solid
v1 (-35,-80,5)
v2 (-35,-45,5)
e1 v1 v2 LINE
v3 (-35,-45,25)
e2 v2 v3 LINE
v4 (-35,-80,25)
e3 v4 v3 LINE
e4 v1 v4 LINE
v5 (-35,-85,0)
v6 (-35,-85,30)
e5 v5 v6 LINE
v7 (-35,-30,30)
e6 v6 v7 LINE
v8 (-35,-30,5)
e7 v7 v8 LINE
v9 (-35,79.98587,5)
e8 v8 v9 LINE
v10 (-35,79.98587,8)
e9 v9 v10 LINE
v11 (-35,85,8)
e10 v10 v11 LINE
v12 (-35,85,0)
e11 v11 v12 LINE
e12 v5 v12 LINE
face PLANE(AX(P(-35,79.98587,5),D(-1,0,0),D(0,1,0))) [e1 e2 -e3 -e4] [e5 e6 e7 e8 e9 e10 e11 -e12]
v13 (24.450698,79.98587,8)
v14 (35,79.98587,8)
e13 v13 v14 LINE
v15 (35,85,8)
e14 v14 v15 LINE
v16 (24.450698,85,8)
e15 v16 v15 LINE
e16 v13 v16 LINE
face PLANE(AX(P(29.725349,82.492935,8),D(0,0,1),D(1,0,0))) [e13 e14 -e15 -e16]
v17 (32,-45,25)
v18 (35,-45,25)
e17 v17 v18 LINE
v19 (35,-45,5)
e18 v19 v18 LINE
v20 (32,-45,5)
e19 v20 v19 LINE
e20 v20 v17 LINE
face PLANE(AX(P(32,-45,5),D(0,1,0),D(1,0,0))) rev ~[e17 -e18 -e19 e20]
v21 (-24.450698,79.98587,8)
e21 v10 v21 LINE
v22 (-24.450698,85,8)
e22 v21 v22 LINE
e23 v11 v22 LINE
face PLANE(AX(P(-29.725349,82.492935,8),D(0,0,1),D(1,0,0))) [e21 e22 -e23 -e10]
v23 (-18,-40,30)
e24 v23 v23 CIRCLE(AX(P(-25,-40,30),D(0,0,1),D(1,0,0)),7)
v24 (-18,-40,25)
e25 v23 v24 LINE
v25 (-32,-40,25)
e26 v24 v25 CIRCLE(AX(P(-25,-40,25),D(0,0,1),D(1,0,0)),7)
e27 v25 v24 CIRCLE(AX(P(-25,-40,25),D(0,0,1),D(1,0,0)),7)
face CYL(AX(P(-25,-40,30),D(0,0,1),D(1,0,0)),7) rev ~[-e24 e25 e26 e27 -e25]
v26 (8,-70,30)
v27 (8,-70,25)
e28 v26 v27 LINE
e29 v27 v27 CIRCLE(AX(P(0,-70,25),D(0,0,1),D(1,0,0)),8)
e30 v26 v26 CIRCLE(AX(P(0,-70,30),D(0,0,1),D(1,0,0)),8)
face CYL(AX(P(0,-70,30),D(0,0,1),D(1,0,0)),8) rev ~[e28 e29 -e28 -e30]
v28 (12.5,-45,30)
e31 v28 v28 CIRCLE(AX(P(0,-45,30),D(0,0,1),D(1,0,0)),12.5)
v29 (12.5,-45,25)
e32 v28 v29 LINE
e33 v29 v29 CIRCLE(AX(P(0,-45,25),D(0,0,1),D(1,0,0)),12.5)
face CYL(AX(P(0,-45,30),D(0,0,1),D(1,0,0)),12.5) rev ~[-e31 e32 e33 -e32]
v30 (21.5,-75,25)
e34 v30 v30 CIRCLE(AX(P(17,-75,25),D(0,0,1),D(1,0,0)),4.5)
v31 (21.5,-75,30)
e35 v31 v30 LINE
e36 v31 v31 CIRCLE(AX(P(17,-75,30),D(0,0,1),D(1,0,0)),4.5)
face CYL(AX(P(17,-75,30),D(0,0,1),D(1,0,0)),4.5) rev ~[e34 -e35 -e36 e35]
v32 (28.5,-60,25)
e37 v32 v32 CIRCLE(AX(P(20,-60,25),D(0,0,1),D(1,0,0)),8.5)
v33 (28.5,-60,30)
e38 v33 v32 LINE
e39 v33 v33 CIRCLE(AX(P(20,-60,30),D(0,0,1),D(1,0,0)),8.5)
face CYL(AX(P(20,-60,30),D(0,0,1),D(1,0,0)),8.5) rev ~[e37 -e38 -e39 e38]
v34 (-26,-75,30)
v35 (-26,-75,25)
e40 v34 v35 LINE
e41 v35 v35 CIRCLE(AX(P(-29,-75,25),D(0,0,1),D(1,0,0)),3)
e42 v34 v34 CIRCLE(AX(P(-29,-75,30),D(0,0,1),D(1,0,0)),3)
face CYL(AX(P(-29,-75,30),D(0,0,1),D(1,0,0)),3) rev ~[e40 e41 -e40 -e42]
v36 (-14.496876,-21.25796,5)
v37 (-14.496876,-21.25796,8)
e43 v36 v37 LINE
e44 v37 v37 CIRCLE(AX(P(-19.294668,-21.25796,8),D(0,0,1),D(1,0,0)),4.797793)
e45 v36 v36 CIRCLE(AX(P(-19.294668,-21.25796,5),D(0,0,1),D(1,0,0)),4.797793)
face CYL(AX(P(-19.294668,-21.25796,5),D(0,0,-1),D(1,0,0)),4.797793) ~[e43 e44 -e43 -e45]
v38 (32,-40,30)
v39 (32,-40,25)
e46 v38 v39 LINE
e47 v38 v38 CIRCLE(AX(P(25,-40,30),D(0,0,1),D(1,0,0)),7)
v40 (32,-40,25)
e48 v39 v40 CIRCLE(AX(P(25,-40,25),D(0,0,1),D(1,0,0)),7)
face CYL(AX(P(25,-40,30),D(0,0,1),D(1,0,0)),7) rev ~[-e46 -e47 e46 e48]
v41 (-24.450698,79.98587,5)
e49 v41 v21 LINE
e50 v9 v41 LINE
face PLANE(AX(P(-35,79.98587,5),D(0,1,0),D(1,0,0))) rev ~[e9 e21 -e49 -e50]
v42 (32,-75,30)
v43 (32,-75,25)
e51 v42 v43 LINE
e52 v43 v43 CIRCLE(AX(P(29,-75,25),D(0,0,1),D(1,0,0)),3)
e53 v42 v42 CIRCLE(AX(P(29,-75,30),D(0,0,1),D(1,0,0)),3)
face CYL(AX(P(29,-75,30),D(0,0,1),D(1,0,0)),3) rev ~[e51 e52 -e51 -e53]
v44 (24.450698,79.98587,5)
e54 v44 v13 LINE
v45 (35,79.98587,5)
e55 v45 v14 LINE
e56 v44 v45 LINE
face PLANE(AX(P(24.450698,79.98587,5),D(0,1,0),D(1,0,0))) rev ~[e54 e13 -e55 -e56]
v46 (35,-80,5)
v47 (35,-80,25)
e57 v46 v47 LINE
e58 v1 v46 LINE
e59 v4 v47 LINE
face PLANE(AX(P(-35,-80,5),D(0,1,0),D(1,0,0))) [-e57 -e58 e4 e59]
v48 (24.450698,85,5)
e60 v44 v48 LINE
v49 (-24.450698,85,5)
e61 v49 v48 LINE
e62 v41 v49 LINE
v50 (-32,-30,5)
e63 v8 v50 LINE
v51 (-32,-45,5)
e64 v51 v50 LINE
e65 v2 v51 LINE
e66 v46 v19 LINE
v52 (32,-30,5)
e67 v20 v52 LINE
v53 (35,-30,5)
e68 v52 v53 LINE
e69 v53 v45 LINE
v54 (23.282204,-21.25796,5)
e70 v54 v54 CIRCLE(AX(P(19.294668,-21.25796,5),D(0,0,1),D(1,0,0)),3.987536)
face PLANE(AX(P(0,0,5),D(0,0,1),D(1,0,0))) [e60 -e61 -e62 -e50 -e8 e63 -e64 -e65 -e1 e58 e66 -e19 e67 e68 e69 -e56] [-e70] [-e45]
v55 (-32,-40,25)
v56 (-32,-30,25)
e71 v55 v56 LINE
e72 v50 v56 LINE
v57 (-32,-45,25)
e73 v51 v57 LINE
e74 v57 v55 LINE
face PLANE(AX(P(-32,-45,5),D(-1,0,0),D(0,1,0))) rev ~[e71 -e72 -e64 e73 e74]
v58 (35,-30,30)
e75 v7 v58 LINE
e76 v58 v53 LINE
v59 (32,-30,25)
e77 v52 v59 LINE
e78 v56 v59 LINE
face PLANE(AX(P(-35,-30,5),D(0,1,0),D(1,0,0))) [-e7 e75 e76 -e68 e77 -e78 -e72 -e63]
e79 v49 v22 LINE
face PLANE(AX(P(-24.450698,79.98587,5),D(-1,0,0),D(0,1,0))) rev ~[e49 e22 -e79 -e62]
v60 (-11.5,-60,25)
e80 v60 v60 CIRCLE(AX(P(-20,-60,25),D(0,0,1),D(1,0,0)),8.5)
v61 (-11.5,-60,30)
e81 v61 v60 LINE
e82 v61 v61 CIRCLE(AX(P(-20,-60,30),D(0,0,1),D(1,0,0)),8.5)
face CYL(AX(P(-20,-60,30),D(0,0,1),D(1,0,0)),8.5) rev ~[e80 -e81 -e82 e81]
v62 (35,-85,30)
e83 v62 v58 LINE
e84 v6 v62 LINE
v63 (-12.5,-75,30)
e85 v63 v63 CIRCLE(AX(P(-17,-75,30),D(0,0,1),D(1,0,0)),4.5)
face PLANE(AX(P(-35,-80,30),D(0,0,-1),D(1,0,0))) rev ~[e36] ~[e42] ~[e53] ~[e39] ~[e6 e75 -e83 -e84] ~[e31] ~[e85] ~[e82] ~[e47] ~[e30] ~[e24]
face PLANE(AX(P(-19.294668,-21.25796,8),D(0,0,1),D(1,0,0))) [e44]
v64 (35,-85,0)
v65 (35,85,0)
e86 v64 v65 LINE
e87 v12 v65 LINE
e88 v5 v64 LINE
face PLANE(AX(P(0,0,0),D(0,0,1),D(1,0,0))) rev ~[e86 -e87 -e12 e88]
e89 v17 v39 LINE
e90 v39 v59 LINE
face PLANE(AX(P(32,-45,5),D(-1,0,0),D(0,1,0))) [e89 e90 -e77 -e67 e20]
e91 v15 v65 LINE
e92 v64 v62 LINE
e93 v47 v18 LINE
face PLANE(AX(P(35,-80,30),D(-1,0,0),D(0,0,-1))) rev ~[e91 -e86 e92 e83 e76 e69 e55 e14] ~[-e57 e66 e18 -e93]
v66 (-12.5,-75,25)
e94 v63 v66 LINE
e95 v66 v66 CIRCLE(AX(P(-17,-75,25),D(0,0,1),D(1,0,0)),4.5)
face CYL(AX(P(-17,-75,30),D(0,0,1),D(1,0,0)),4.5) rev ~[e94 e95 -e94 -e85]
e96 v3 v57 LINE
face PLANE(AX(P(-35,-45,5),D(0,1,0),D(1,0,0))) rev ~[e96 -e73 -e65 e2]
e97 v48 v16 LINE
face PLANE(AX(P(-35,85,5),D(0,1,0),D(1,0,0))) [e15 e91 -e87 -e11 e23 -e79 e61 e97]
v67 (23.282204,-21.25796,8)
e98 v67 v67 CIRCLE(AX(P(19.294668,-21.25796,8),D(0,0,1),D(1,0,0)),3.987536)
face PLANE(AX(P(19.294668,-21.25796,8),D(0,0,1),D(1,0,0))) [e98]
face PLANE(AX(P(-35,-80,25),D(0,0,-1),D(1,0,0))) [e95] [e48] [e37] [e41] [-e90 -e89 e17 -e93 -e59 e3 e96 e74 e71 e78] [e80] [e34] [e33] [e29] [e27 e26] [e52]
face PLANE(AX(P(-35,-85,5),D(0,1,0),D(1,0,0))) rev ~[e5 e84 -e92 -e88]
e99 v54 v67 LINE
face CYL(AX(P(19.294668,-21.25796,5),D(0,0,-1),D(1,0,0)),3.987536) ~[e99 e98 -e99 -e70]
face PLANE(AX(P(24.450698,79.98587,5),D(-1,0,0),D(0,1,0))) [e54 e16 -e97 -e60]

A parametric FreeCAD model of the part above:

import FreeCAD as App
import Part
import Sketcher
Q = App.Units.Quantity


def add_polygon(sketch, points):
    """Adds a closed chain of lines whose ends are joined by coincident constraints."""
    first, n = sketch.GeometryCount, len(points)
    for a, b in zip(points, points[1:] + points[:1]):
        sketch.addGeometry(Part.LineSegment(App.Vector(*a, 0), App.Vector(*b, 0)), False)
    for i in range(n):
        sketch.addConstraint(Sketcher.Constraint("Coincident", first + i, 2, first + (i + 1) % n, 1))

doc = App.newDocument("Part")
body = doc.addObject("PartDesign::Body", "Body")

sketch1 = doc.addObject("Sketcher::SketchObject", "Sketch")
body.addObject(sketch1)
sketch1.AttachmentSupport = (doc.XY_Plane, [""])
sketch1.MapMode = "FlatFace"
add_polygon(sketch1, [(-35, 85), (-35, -85), (35, -85), (35, 85)])
sketch1.addConstraint(Sketcher.Constraint("Vertical", 0))
sketch1.addConstraint(Sketcher.Constraint("Horizontal", 1))
sketch1.addConstraint(Sketcher.Constraint("Vertical", 2))
sketch1.addConstraint(Sketcher.Constraint("Horizontal", 3))
sketch1.addConstraint(Sketcher.Constraint("Symmetric", 0, 2, 2, 2, -1, 1))
sketch1.addConstraint(Sketcher.Constraint("DistanceX", 1, 1, 1, 2, Q("70 mm")))
sketch1.addConstraint(Sketcher.Constraint("DistanceY", 0, 2, 0, 1, Q("170 mm")))
pad1 = doc.addObject("PartDesign::Pad", "Pad")
body.addObject(pad1)
pad1.Profile = sketch1
pad1.Length = 5

sketch2 = doc.addObject("Sketcher::SketchObject", "Sketch001")
body.addObject(sketch2)
sketch2.AttachmentSupport = (doc.XY_Plane, [""])
sketch2.MapMode = "FlatFace"
sketch2.AttachmentOffset = App.Placement(App.Vector(0, 0, 5), App.Rotation())
add_polygon(sketch2, [(-35, -80), (-35, -85), (35, -85), (35, -80)])
sketch2.addConstraint(Sketcher.Constraint("Vertical", 0))
sketch2.addConstraint(Sketcher.Constraint("Horizontal", 1))
sketch2.addConstraint(Sketcher.Constraint("Vertical", 2))
sketch2.addConstraint(Sketcher.Constraint("Horizontal", 3))
sketch2.addConstraint(Sketcher.Constraint("DistanceX", 1, 1, 1, 2, Q("70 mm")))
sketch2.addConstraint(Sketcher.Constraint("DistanceY", 0, 2, 0, 1, Q("5 mm")))
sketch2.addConstraint(Sketcher.Constraint("DistanceX", 0, 2, -1, 1, Q("35 mm")))
sketch2.addConstraint(Sketcher.Constraint("DistanceY", 0, 2, -1, 1, Q("85 mm")))
pad2 = doc.addObject("PartDesign::Pad", "Pad001")
body.addObject(pad2)
pad2.Profile = sketch2
pad2.Length = 25

sketch3 = doc.addObject("Sketcher::SketchObject", "Sketch002")
body.addObject(sketch3)
sketch3.AttachmentSupport = (doc.XZ_Plane, [""])
sketch3.MapMode = "FlatFace"
sketch3.AttachmentOffset = App.Placement(App.Vector(0, 0, 80), App.Rotation())
add_polygon(sketch3, [(-35, 25), (-35, 30), (35, 30), (35, 25)])
sketch3.addConstraint(Sketcher.Constraint("Vertical", 0))
sketch3.addConstraint(Sketcher.Constraint("Horizontal", 1))
sketch3.addConstraint(Sketcher.Constraint("Vertical", 2))
sketch3.addConstraint(Sketcher.Constraint("Horizontal", 3))
sketch3.addConstraint(Sketcher.Constraint("DistanceX", 1, 1, 1, 2, Q("70 mm")))
sketch3.addConstraint(Sketcher.Constraint("DistanceY", 0, 1, 0, 2, Q("5 mm")))
sketch3.addConstraint(Sketcher.Constraint("DistanceX", 0, 2, -1, 1, Q("35 mm")))
sketch3.addConstraint(Sketcher.Constraint("DistanceY", -1, 1, 0, 2, Q("30 mm")))
pad3 = doc.addObject("PartDesign::Pad", "Pad002")
body.addObject(pad3)
pad3.Profile = sketch3
pad3.Length = 50
pad3.Reversed = True

sketch4 = doc.addObject("Sketcher::SketchObject", "Sketch003")
body.addObject(sketch4)
sketch4.AttachmentSupport = (doc.XY_Plane, [""])
sketch4.MapMode = "FlatFace"
sketch4.AttachmentOffset = App.Placement(App.Vector(0, 0, 5), App.Rotation())
add_polygon(sketch4, [(-35, -30), (-35, -45), (-32, -45), (-32, -30)])
add_polygon(sketch4, [(32, -30), (32, -45), (35, -45), (35, -30)])
sketch4.addConstraint(Sketcher.Constraint("Vertical", 0))
sketch4.addConstraint(Sketcher.Constraint("Horizontal", 1))
sketch4.addConstraint(Sketcher.Constraint("Vertical", 2))
sketch4.addConstraint(Sketcher.Constraint("Horizontal", 3))
sketch4.addConstraint(Sketcher.Constraint("Vertical", 4))
sketch4.addConstraint(Sketcher.Constraint("Horizontal", 5))
sketch4.addConstraint(Sketcher.Constraint("Vertical", 6))
sketch4.addConstraint(Sketcher.Constraint("Horizontal", 7))
sketch4.addConstraint(Sketcher.Constraint("Symmetric", 1, 2, 4, 2, -2))
sketch4.addConstraint(Sketcher.Constraint("Symmetric", 3, 2, 6, 2, -2))
sketch4.addConstraint(Sketcher.Constraint("DistanceX", 1, 1, 1, 2, Q("3 mm")))
sketch4.addConstraint(Sketcher.Constraint("DistanceY", 0, 2, 0, 1, Q("15 mm")))
sketch4.addConstraint(Sketcher.Constraint("DistanceX", 0, 2, -1, 1, Q("35 mm")))
sketch4.addConstraint(Sketcher.Constraint("DistanceY", 0, 2, -1, 1, Q("45 mm")))
pad4 = doc.addObject("PartDesign::Pad", "Pad003")
body.addObject(pad4)
pad4.Profile = sketch4
pad4.Length = 20

sketch5 = doc.addObject("Sketcher::SketchObject", "Sketch004")
body.addObject(sketch5)
sketch5.AttachmentSupport = (doc.XY_Plane, [""])
sketch5.MapMode = "FlatFace"
sketch5.AttachmentOffset = App.Placement(App.Vector(0, 0, 30), App.Rotation())
sketch5.addGeometry(Part.Circle(App.Vector(0, -45, 0), App.Vector(0, 0, 1), 12), False)
sketch5.addConstraint(Sketcher.Constraint("PointOnObject", 0, 3, -2))
sketch5.addConstraint(Sketcher.Constraint("Diameter", 0, Q("25 mm")))
sketch5.addConstraint(Sketcher.Constraint("DistanceY", 0, 3, -1, 1, Q("45 mm")))
pocket1 = doc.addObject("PartDesign::Pocket", "Pocket")
body.addObject(pocket1)
pocket1.Profile = sketch5
pocket1.Type = "UpToFirst"

sketch6 = doc.addObject("Sketcher::SketchObject", "Sketch005")
body.addObject(sketch6)
sketch6.AttachmentSupport = (doc.XY_Plane, [""])
sketch6.MapMode = "FlatFace"
sketch6.AttachmentOffset = App.Placement(App.Vector(0, 0, 30), App.Rotation())
sketch6.addGeometry(Part.Circle(App.Vector(-25, -40, 0), App.Vector(0, 0, 1), 7), False)
sketch6.addConstraint(Sketcher.Constraint("Diameter", 0, Q("14 mm")))
sketch6.addConstraint(Sketcher.Constraint("DistanceX", 0, 3, -1, 1, Q("25 mm")))
sketch6.addConstraint(Sketcher.Constraint("DistanceY", 0, 3, -1, 1, Q("40 mm")))
pocket2 = doc.addObject("PartDesign::Pocket", "Pocket001")
body.addObject(pocket2)
pocket2.Profile = sketch6
pocket2.Type = "UpToFirst"

sketch7 = doc.addObject("Sketcher::SketchObject", "Sketch006")
body.addObject(sketch7)
sketch7.AttachmentSupport = (doc.XY_Plane, [""])
sketch7.MapMode = "FlatFace"
sketch7.AttachmentOffset = App.Placement(App.Vector(0, 0, 30), App.Rotation())
sketch7.addGeometry(Part.Circle(App.Vector(25, -40, 0), App.Vector(0, 0, 1), 7), False)
sketch7.addConstraint(Sketcher.Constraint("Diameter", 0, Q("14 mm")))
sketch7.addConstraint(Sketcher.Constraint("DistanceX", -1, 1, 0, 3, Q("25 mm")))
sketch7.addConstraint(Sketcher.Constraint("DistanceY", 0, 3, -1, 1, Q("40 mm")))
pocket3 = doc.addObject("PartDesign::Pocket", "Pocket002")
body.addObject(pocket3)
pocket3.Profile = sketch7
pocket3.Type = "UpToFirst"

sketch8 = doc.addObject("Sketcher::SketchObject", "Sketch007")
body.addObject(sketch8)
sketch8.AttachmentSupport = (doc.XY_Plane, [""])
sketch8.MapMode = "FlatFace"
sketch8.AttachmentOffset = App.Placement(App.Vector(0, 0, 30), App.Rotation())
sketch8.addGeometry(Part.Circle(App.Vector(-20, -60, 0), App.Vector(0, 0, 1), 8), False)
sketch8.addConstraint(Sketcher.Constraint("Diameter", 0, Q("17 mm")))
sketch8.addConstraint(Sketcher.Constraint("DistanceX", 0, 3, -1, 1, Q("20 mm")))
sketch8.addConstraint(Sketcher.Constraint("DistanceY", 0, 3, -1, 1, Q("60 mm")))
pocket4 = doc.addObject("PartDesign::Pocket", "Pocket003")
body.addObject(pocket4)
pocket4.Profile = sketch8
pocket4.Type = "UpToFirst"

sketch9 = doc.addObject("Sketcher::SketchObject", "Sketch008")
body.addObject(sketch9)
sketch9.AttachmentSupport = (doc.XY_Plane, [""])
sketch9.MapMode = "FlatFace"
sketch9.AttachmentOffset = App.Placement(App.Vector(0, 0, 30), App.Rotation())
sketch9.addGeometry(Part.Circle(App.Vector(20, -60, 0), App.Vector(0, 0, 1), 8), False)
sketch9.addConstraint(Sketcher.Constraint("Diameter", 0, Q("17 mm")))
sketch9.addConstraint(Sketcher.Constraint("DistanceX", -1, 1, 0, 3, Q("20 mm")))
sketch9.addConstraint(Sketcher.Constraint("DistanceY", 0, 3, -1, 1, Q("60 mm")))
pocket5 = doc.addObject("PartDesign::Pocket", "Pocket004")
body.addObject(pocket5)
pocket5.Profile = sketch9
pocket5.Type = "UpToFirst"

sketch10 = doc.addObject("Sketcher::SketchObject", "Sketch009")
body.addObject(sketch10)
sketch10.AttachmentSupport = (doc.XY_Plane, [""])
sketch10.MapMode = "FlatFace"
sketch10.AttachmentOffset = App.Placement(App.Vector(0, 0, 30), App.Rotation())
sketch10.addGeometry(Part.Circle(App.Vector(0, -70, 0), App.Vector(0, 0, 1), 8), False)
sketch10.addConstraint(Sketcher.Constraint("PointOnObject", 0, 3, -2))
sketch10.addConstraint(Sketcher.Constraint("Diameter", 0, Q("16 mm")))
sketch10.addConstraint(Sketcher.Constraint("DistanceY", 0, 3, -1, 1, Q("70 mm")))
pocket6 = doc.addObject("PartDesign::Pocket", "Pocket005")
body.addObject(pocket6)
pocket6.Profile = sketch10
pocket6.Type = "UpToFirst"

sketch11 = doc.addObject("Sketcher::SketchObject", "Sketch010")
body.addObject(sketch11)
sketch11.AttachmentSupport = (doc.XY_Plane, [""])
sketch11.MapMode = "FlatFace"
sketch11.AttachmentOffset = App.Placement(App.Vector(0, 0, 30), App.Rotation())
sketch11.addGeometry(Part.Circle(App.Vector(-17, -75, 0), App.Vector(0, 0, 1), 4.5), False)
sketch11.addConstraint(Sketcher.Constraint("Diameter", 0, Q("9 mm")))
sketch11.addConstraint(Sketcher.Constraint("DistanceX", 0, 3, -1, 1, Q("17 mm")))
sketch11.addConstraint(Sketcher.Constraint("DistanceY", 0, 3, -1, 1, Q("75 mm")))
pocket7 = doc.addObject("PartDesign::Pocket", "Pocket006")
body.addObject(pocket7)
pocket7.Profile = sketch11
pocket7.Type = "UpToFirst"

sketch12 = doc.addObject("Sketcher::SketchObject", "Sketch011")
body.addObject(sketch12)
sketch12.AttachmentSupport = (doc.XY_Plane, [""])
sketch12.MapMode = "FlatFace"
sketch12.AttachmentOffset = App.Placement(App.Vector(0, 0, 30), App.Rotation())
sketch12.addGeometry(Part.Circle(App.Vector(17, -75, 0), App.Vector(0, 0, 1), 4.5), False)
sketch12.addConstraint(Sketcher.Constraint("Diameter", 0, Q("9 mm")))
sketch12.addConstraint(Sketcher.Constraint("DistanceX", -1, 1, 0, 3, Q("17 mm")))
sketch12.addConstraint(Sketcher.Constraint("DistanceY", 0, 3, -1, 1, Q("75 mm")))
pocket8 = doc.addObject("PartDesign::Pocket", "Pocket007")
body.addObject(pocket8)
pocket8.Profile = sketch12
pocket8.Type = "UpToFirst"

sketch13 = doc.addObject("Sketcher::SketchObject", "Sketch012")
body.addObject(sketch13)
sketch13.AttachmentSupport = (doc.XY_Plane, [""])
sketch13.MapMode = "FlatFace"
sketch13.AttachmentOffset = App.Placement(App.Vector(0, 0, 30), App.Rotation())
sketch13.addGeometry(Part.Circle(App.Vector(29, -75, 0), App.Vector(0, 0, 1), 3), False)
sketch13.addConstraint(Sketcher.Constraint("Diameter", 0, Q("6 mm")))
sketch13.addConstraint(Sketcher.Constraint("DistanceX", -1, 1, 0, 3, Q("29 mm")))
sketch13.addConstraint(Sketcher.Constraint("DistanceY", 0, 3, -1, 1, Q("75 mm")))
pocket9 = doc.addObject("PartDesign::Pocket", "Pocket008")
body.addObject(pocket9)
pocket9.Profile = sketch13
pocket9.Type = "UpToFirst"

sketch14 = doc.addObject("Sketcher::SketchObject", "Sketch013")
body.addObject(sketch14)
sketch14.AttachmentSupport = (doc.XY_Plane, [""])
sketch14.MapMode = "FlatFace"
sketch14.AttachmentOffset = App.Placement(App.Vector(0, 0, 30), App.Rotation())
sketch14.addGeometry(Part.Circle(App.Vector(-29, -75, 0), App.Vector(0, 0, 1), 3), False)
sketch14.addConstraint(Sketcher.Constraint("Diameter", 0, Q("6 mm")))
sketch14.addConstraint(Sketcher.Constraint("DistanceX", 0, 3, -1, 1, Q("29 mm")))
sketch14.addConstraint(Sketcher.Constraint("DistanceY", 0, 3, -1, 1, Q("75 mm")))
pocket10 = doc.addObject("PartDesign::Pocket", "Pocket009")
body.addObject(pocket10)
pocket10.Profile = sketch14
pocket10.Type = "UpToFirst"

sketch15 = doc.addObject("Sketcher::SketchObject", "Sketch014")
body.addObject(sketch15)
sketch15.AttachmentSupport = (doc.XY_Plane, [""])
sketch15.MapMode = "FlatFace"
sketch15.AttachmentOffset = App.Placement(App.Vector(0, 0, 5), App.Rotation())
sketch15.addGeometry(Part.Circle(App.Vector(-19.3, -21.3, 0), App.Vector(0, 0, 1), 4.8), False)
sketch15.addGeometry(Part.Circle(App.Vector(19.3, -21.3, 0), App.Vector(0, 0, 1), 4), False)
add_polygon(sketch15, [(-35, 85), (-35, 80), (-24.5, 80), (-24.5, 85)])
add_polygon(sketch15, [(24.5, 85), (24.5, 80), (35, 80), (35, 85)])
sketch15.addConstraint(Sketcher.Constraint("Vertical", 2))
sketch15.addConstraint(Sketcher.Constraint("Horizontal", 3))
sketch15.addConstraint(Sketcher.Constraint("Vertical", 4))
sketch15.addConstraint(Sketcher.Constraint("Horizontal", 5))
sketch15.addConstraint(Sketcher.Constraint("Vertical", 6))
sketch15.addConstraint(Sketcher.Constraint("Horizontal", 7))
sketch15.addConstraint(Sketcher.Constraint("Vertical", 8))
sketch15.addConstraint(Sketcher.Constraint("Horizontal", 9))
sketch15.addConstraint(Sketcher.Constraint("Symmetric", 0, 3, 1, 3, -2))
sketch15.addConstraint(Sketcher.Constraint("Symmetric", 3, 2, 6, 2, -2))
sketch15.addConstraint(Sketcher.Constraint("Symmetric", 5, 2, 8, 2, -2))
sketch15.addConstraint(Sketcher.Constraint("DistanceX", 2, 2, -1, 1, Q("35 mm")))
sketch15.addConstraint(Sketcher.Constraint("DistanceY", -1, 1, 4, 2, Q("85 mm")))
sketch15.addConstraint(Sketcher.Constraint("Diameter", 1, Q("7.975072 mm")))
sketch15.addConstraint(Sketcher.Constraint("Diameter", 0, Q("9.595585 mm")))
sketch15.addConstraint(Sketcher.Constraint("DistanceX", 3, 1, 3, 2, Q("10.549302 mm")))
sketch15.addConstraint(Sketcher.Constraint("DistanceY", 2, 2, 2, 1, Q("5.01413 mm")))
sketch15.addConstraint(Sketcher.Constraint("DistanceX", 0, 3, -1, 1, Q("19.294668 mm")))
sketch15.addConstraint(Sketcher.Constraint("DistanceY", 0, 3, -1, 1, Q("21.25796 mm")))
pad5 = doc.addObject("PartDesign::Pad", "Pad004")
body.addObject(pad5)
pad5.Profile = sketch15
pad5.Length = 3

doc.recompute()
